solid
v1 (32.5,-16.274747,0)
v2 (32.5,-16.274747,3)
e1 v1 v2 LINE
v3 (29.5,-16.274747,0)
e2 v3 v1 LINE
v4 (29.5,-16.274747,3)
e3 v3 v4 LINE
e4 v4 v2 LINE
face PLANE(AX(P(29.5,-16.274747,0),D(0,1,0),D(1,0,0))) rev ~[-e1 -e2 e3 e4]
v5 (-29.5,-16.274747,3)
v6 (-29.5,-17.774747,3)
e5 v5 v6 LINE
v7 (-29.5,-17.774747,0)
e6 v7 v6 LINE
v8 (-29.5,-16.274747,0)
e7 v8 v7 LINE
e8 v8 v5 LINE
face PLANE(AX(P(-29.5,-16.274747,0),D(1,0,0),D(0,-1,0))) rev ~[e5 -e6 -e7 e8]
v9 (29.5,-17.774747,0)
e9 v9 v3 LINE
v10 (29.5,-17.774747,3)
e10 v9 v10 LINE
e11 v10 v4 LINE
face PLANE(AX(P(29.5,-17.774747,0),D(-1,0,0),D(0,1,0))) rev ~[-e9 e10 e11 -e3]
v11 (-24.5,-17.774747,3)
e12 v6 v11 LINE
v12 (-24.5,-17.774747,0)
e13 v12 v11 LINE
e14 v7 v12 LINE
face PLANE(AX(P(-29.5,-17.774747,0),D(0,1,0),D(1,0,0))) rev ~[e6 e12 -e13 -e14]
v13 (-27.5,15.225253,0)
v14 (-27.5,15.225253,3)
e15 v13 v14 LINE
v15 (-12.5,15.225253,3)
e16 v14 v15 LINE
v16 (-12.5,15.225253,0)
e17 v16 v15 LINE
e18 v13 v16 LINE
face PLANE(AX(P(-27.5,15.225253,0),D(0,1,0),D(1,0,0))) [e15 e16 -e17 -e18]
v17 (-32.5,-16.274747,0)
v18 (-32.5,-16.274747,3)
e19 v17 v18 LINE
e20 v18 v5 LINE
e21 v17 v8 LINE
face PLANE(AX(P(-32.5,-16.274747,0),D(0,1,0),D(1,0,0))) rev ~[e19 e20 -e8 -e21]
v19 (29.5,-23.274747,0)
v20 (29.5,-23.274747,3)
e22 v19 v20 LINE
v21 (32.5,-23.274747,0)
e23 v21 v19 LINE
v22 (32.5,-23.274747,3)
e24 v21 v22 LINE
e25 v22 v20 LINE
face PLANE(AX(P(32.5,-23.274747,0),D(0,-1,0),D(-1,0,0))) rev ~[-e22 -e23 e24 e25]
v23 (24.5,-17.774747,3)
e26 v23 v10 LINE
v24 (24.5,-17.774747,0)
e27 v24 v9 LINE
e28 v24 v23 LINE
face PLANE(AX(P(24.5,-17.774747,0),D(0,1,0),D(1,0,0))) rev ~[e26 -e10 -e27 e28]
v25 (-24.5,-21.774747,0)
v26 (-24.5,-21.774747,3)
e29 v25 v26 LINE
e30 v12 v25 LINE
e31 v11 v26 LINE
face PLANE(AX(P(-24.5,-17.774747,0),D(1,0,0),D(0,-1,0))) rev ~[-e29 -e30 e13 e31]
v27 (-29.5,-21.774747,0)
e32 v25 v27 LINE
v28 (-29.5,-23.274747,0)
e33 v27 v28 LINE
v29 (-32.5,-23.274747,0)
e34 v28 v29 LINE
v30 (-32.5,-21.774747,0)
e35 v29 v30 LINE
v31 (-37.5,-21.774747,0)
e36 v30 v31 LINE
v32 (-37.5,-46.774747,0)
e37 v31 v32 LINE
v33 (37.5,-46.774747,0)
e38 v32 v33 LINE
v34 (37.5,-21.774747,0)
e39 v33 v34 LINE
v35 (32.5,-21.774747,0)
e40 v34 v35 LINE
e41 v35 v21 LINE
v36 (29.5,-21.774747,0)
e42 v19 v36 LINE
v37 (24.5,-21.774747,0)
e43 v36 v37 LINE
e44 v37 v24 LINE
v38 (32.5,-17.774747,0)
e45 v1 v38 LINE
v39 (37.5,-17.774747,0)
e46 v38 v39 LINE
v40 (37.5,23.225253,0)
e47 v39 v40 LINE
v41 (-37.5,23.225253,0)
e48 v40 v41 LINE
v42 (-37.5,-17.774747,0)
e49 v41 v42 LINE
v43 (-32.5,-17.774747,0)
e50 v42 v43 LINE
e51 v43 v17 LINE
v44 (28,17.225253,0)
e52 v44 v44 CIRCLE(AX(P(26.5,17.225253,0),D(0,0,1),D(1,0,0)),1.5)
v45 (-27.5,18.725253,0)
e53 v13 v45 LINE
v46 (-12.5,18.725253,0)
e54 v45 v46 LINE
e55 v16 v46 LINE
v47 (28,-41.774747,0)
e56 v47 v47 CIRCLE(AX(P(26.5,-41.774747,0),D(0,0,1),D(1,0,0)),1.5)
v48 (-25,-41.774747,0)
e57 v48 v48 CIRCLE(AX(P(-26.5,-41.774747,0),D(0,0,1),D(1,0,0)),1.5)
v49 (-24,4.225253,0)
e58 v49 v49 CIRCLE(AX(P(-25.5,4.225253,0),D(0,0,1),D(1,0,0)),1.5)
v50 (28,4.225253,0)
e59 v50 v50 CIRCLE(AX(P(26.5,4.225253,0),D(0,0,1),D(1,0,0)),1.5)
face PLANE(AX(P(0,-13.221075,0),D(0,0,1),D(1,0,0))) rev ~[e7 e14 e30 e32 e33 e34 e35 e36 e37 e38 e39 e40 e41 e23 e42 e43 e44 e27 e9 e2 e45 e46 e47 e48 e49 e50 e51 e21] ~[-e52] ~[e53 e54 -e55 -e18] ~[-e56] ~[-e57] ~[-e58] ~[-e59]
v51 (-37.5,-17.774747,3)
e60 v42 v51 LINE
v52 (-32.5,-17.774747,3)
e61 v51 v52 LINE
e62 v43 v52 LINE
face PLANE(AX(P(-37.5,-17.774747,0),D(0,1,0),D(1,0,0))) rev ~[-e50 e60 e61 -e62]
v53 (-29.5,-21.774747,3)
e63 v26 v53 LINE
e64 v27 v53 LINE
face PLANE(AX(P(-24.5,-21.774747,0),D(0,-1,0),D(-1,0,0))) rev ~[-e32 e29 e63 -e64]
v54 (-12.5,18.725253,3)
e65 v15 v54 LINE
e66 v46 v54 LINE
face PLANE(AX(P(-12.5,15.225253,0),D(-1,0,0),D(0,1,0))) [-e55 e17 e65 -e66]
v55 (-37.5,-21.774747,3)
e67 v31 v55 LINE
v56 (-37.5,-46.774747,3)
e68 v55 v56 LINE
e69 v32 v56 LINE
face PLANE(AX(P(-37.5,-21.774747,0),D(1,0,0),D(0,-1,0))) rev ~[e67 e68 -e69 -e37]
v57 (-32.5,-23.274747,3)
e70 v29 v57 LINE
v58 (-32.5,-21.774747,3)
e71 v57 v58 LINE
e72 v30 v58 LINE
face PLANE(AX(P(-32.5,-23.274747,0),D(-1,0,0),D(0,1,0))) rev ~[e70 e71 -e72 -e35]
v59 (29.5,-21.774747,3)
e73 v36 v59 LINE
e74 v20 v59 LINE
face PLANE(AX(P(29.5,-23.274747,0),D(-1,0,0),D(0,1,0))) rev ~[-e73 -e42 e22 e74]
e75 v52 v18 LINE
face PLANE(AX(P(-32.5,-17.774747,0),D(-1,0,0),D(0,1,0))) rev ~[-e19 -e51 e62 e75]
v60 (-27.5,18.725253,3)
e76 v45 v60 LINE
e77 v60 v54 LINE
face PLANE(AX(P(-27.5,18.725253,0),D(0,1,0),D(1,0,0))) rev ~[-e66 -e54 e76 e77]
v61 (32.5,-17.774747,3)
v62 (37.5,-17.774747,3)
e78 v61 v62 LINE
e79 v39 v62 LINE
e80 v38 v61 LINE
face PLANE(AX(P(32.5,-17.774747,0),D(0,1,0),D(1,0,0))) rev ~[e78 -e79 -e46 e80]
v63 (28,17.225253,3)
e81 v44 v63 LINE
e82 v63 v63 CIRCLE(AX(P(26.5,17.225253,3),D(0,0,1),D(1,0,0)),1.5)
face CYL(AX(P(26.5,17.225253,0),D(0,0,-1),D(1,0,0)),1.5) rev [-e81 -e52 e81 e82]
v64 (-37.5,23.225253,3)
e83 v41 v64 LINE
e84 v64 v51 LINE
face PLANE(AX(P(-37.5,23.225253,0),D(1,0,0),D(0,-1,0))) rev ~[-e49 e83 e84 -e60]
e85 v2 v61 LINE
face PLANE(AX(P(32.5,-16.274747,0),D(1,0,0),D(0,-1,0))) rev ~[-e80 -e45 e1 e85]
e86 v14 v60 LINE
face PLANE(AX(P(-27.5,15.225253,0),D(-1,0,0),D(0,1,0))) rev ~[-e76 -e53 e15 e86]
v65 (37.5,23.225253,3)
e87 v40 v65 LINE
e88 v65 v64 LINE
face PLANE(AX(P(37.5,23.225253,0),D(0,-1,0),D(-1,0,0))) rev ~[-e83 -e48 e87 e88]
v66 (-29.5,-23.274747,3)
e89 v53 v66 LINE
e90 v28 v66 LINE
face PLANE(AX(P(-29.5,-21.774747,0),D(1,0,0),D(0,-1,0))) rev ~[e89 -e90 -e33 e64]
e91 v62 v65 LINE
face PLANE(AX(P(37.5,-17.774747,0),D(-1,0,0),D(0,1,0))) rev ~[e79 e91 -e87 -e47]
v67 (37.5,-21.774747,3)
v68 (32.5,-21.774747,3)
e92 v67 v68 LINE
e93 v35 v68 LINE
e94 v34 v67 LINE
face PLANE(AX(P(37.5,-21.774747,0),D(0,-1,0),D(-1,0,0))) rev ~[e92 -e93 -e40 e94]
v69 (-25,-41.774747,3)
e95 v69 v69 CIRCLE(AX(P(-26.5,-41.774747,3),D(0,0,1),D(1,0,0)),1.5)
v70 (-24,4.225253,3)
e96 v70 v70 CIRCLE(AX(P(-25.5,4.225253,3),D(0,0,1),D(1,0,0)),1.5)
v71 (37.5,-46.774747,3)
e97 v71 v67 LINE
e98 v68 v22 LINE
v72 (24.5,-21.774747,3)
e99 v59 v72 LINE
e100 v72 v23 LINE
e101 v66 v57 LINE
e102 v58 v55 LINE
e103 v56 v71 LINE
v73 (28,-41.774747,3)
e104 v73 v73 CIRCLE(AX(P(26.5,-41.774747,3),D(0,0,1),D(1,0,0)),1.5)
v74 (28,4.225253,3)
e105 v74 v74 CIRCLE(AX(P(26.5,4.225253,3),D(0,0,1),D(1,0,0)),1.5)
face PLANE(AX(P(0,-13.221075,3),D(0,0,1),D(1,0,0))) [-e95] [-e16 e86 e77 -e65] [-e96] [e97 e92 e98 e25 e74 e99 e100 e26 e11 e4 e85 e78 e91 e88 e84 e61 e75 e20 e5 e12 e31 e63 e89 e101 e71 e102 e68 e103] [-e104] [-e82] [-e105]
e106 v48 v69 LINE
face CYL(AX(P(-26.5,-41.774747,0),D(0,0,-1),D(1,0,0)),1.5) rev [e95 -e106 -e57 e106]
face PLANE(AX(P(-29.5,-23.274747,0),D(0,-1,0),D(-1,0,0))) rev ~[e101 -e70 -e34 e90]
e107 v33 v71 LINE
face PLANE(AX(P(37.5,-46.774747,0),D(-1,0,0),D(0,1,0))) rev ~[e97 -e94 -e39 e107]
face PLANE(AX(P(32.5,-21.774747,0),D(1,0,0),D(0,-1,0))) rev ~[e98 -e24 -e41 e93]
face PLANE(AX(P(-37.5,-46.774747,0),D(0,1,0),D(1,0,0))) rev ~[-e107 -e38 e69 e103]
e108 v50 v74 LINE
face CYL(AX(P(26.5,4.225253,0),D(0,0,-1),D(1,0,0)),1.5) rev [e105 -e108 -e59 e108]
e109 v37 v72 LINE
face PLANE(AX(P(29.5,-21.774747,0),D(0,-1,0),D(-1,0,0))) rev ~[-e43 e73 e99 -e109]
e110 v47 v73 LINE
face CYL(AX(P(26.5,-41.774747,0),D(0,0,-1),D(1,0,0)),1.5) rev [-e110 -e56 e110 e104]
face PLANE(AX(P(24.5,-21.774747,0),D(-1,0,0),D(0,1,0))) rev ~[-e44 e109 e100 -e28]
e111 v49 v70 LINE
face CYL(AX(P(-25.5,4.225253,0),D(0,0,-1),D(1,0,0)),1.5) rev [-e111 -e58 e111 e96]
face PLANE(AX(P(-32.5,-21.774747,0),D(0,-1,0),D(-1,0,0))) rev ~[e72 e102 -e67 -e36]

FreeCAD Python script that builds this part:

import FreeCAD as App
import Part
import Sketcher
from FreeCAD import Vector

doc = App.newDocument("Part")
body = doc.addObject("PartDesign::Body", "Body")

sketch1 = body.newObject("Sketcher::SketchObject", "Sketch")
sketch1.AttachmentSupport = (doc.getObject("XY_Plane"), [""])
sketch1.MapMode = "FlatFace"
sketch1.addGeometry([
    Part.LineSegment(Vector(-37.5, -21.8, 0), Vector(-37.5, -46.8, 0)),
    Part.LineSegment(Vector(-37.5, -46.8, 0), Vector(37.5, -46.8, 0)),
    Part.LineSegment(Vector(37.5, -46.8, 0), Vector(37.5, -21.8, 0)),
    Part.LineSegment(Vector(37.5, -21.8, 0), Vector(32.5, -21.8, 0)),
    Part.LineSegment(Vector(32.5, -21.8, 0), Vector(32.5, -23.3, 0)),
    Part.LineSegment(Vector(32.5, -23.3, 0), Vector(29.5, -23.3, 0)),
    Part.LineSegment(Vector(29.5, -23.3, 0), Vector(29.5, -21.8, 0)),
    Part.LineSegment(Vector(29.5, -21.8, 0), Vector(24.5, -21.8, 0)),
    Part.LineSegment(Vector(24.5, -21.8, 0), Vector(24.5, -17.8, 0)),
    Part.LineSegment(Vector(24.5, -17.8, 0), Vector(29.5, -17.8, 0)),
    Part.LineSegment(Vector(29.5, -17.8, 0), Vector(29.5, -16.3, 0)),
    Part.LineSegment(Vector(29.5, -16.3, 0), Vector(32.5, -16.3, 0)),
    Part.LineSegment(Vector(32.5, -16.3, 0), Vector(32.5, -17.8, 0)),
    Part.LineSegment(Vector(32.5, -17.8, 0), Vector(37.5, -17.8, 0)),
    Part.LineSegment(Vector(37.5, -17.8, 0), Vector(37.5, 23.2, 0)),
    Part.LineSegment(Vector(37.5, 23.2, 0), Vector(-37.5, 23.2, 0)),
    Part.LineSegment(Vector(-37.5, 23.2, 0), Vector(-37.5, -17.8, 0)),
    Part.LineSegment(Vector(-37.5, -17.8, 0), Vector(-32.5, -17.8, 0)),
    Part.LineSegment(Vector(-32.5, -17.8, 0), Vector(-32.5, -16.3, 0)),
    Part.LineSegment(Vector(-32.5, -16.3, 0), Vector(-29.5, -16.3, 0)),
    Part.LineSegment(Vector(-29.5, -16.3, 0), Vector(-29.5, -17.8, 0)),
    Part.LineSegment(Vector(-29.5, -17.8, 0), Vector(-24.5, -17.8, 0)),
    Part.LineSegment(Vector(-24.5, -17.8, 0), Vector(-24.5, -21.8, 0)),
    Part.LineSegment(Vector(-24.5, -21.8, 0), Vector(-29.5, -21.8, 0)),
    Part.LineSegment(Vector(-29.5, -21.8, 0), Vector(-29.5, -23.3, 0)),
    Part.LineSegment(Vector(-29.5, -23.3, 0), Vector(-32.5, -23.3, 0)),
    Part.LineSegment(Vector(-32.5, -23.3, 0), Vector(-32.5, -21.8, 0)),
    Part.LineSegment(Vector(-32.5, -21.8, 0), Vector(-37.5, -21.8, 0)),
    Part.Circle(Vector(-26.5, -41.8, 0), Vector(0, 0, 1), 1.5),
    Part.Circle(Vector(26.5, -41.8, 0), Vector(0, 0, 1), 1.5),
    Part.Circle(Vector(-25.5, 4.2, 0), Vector(0, 0, 1), 1.5),
    Part.LineSegment(Vector(-12.5, 15.2, 0), Vector(-27.5, 15.2, 0)),
    Part.LineSegment(Vector(-27.5, 15.2, 0), Vector(-27.5, 18.7, 0)),
    Part.LineSegment(Vector(-27.5, 18.7, 0), Vector(-12.5, 18.7, 0)),
    Part.LineSegment(Vector(-12.5, 18.7, 0), Vector(-12.5, 15.2, 0)),
    Part.Circle(Vector(26.5, 4.2, 0), Vector(0, 0, 1), 1.5),
    Part.Circle(Vector(26.5, 17.2, 0), Vector(0, 0, 1), 1.5),
], False)
sketch1.addConstraint([
    Sketcher.Constraint("Coincident", 0, 2, 1, 1),
    Sketcher.Constraint("Coincident", 1, 2, 2, 1),
    Sketcher.Constraint("Coincident", 2, 2, 3, 1),
    Sketcher.Constraint("Coincident", 3, 2, 4, 1),
    Sketcher.Constraint("Coincident", 4, 2, 5, 1),
    Sketcher.Constraint("Coincident", 5, 2, 6, 1),
    Sketcher.Constraint("Coincident", 6, 2, 7, 1),
    Sketcher.Constraint("Coincident", 7, 2, 8, 1),
    Sketcher.Constraint("Coincident", 8, 2, 9, 1),
    Sketcher.Constraint("Coincident", 9, 2, 10, 1),
    Sketcher.Constraint("Coincident", 10, 2, 11, 1),
    Sketcher.Constraint("Coincident", 11, 2, 12, 1),
    Sketcher.Constraint("Coincident", 12, 2, 13, 1),
    Sketcher.Constraint("Coincident", 13, 2, 14, 1),
    Sketcher.Constraint("Coincident", 14, 2, 15, 1),
    Sketcher.Constraint("Coincident", 15, 2, 16, 1),
    Sketcher.Constraint("Coincident", 16, 2, 17, 1),
    Sketcher.Constraint("Coincident", 17, 2, 18, 1),
    Sketcher.Constraint("Coincident", 18, 2, 19, 1),
    Sketcher.Constraint("Coincident", 19, 2, 20, 1),
    Sketcher.Constraint("Coincident", 20, 2, 21, 1),
    Sketcher.Constraint("Coincident", 21, 2, 22, 1),
    Sketcher.Constraint("Coincident", 22, 2, 23, 1),
    Sketcher.Constraint("Coincident", 23, 2, 24, 1),
    Sketcher.Constraint("Coincident", 24, 2, 25, 1),
    Sketcher.Constraint("Coincident", 25, 2, 26, 1),
    Sketcher.Constraint("Coincident", 26, 2, 27, 1),
    Sketcher.Constraint("Coincident", 27, 2, 0, 1),
    Sketcher.Constraint("Coincident", 31, 2, 32, 1),
    Sketcher.Constraint("Coincident", 32, 2, 33, 1),
    Sketcher.Constraint("Coincident", 33, 2, 34, 1),
    Sketcher.Constraint("Coincident", 34, 2, 31, 1),
    Sketcher.Constraint("Vertical", 0),
    Sketcher.Constraint("Horizontal", 1),
    Sketcher.Constraint("Vertical", 2),
    Sketcher.Constraint("Horizontal", 3),
    Sketcher.Constraint("Vertical", 4),
    Sketcher.Constraint("Horizontal", 5),
    Sketcher.Constraint("Vertical", 6),
    Sketcher.Constraint("Horizontal", 7),
    Sketcher.Constraint("Vertical", 8),
    Sketcher.Constraint("Horizontal", 9),
    Sketcher.Constraint("Vertical", 10),
    Sketcher.Constraint("Horizontal", 11),
    Sketcher.Constraint("Vertical", 12),
    Sketcher.Constraint("Horizontal", 13),
    Sketcher.Constraint("Vertical", 14),
    Sketcher.Constraint("Horizontal", 15),
    Sketcher.Constraint("Vertical", 16),
    Sketcher.Constraint("Horizontal", 17),
    Sketcher.Constraint("Vertical", 18),
    Sketcher.Constraint("Horizontal", 19),
    Sketcher.Constraint("Vertical", 20),
    Sketcher.Constraint("Horizontal", 21),
    Sketcher.Constraint("Vertical", 22),
    Sketcher.Constraint("Horizontal", 23),
    Sketcher.Constraint("Vertical", 24),
    Sketcher.Constraint("Horizontal", 25),
    Sketcher.Constraint("Vertical", 26),
    Sketcher.Constraint("Horizontal", 27),
    Sketcher.Constraint("Horizontal", 31),
    Sketcher.Constraint("Vertical", 32),
    Sketcher.Constraint("Horizontal", 33),
    Sketcher.Constraint("Vertical", 34),
    Sketcher.Constraint("Equal", 28, 29),
    Sketcher.Constraint("Equal", 29, 30),
    Sketcher.Constraint("Equal", 30, 35),
    Sketcher.Constraint("Equal", 35, 36),
    Sketcher.Constraint("Symmetric", 28, 3, 29, 3, -2),
    Sketcher.Constraint("Symmetric", 13, 2, 16, 2, -2),
    Sketcher.Constraint("Symmetric", 11, 2, 18, 2, -2),
    Sketcher.Constraint("Symmetric", 9, 2, 20, 2, -2),
    Sketcher.Constraint("Symmetric", 7, 2, 22, 2, -2),
    Sketcher.Constraint("Symmetric", 5, 2, 24, 2, -2),
    Sketcher.Constraint("Symmetric", 3, 2, 26, 2, -2),
    Sketcher.Constraint("Horizontal", 30, 3, 35, 3),
    Sketcher.Constraint("Horizontal", 3, 2, 6, 2),
    Sketcher.Constraint("Horizontal", 9, 2, 12, 2),
    Sketcher.Constraint("Vertical", 29, 3, 35, 3),
    Sketcher.Constraint("Vertical", 35, 3, 36, 3),
    Sketcher.Constraint("Vertical", 6, 2, 9, 2),
    Sketcher.Constraint("Vertical", 4, 2, 11, 2),
    Sketcher.Constraint("Vertical", 2, 2, 13, 2),
    Sketcher.Constraint("Vertical", 0, 2, 15, 2),
    Sketcher.Constraint("Equal", 3, 7),
    Sketcher.Constraint("Equal", 6, 10),
    Sketcher.Constraint("Diameter", 28, 3.0),
    Sketcher.Constraint("DistanceX", 1, 1, 1, 2, 75.0),
    Sketcher.Constraint("DistanceX", 3, 2, 3, 1, 5.0),
    Sketcher.Constraint("DistanceX", 5, 2, 5, 1, 3.0),
    Sketcher.Constraint("DistanceX", 31, 2, 31, 1, 15.0),
    Sketcher.Constraint("DistanceY", 0, 2, 0, 1, 25.0),
    Sketcher.Constraint("DistanceY", 8, 1, 8, 2, 4.0),
    Sketcher.Constraint("DistanceY", 14, 1, 14, 2, 41.0),
    Sketcher.Constraint("DistanceY", 4, 2, 4, 1, 1.5),
    Sketcher.Constraint("DistanceY", 32, 1, 32, 2, 3.5),
    Sketcher.Constraint("DistanceX", 28, 3, 29, 3, 53.0),
    Sketcher.Constraint("DistanceX", 28, 3, 30, 3, 1.0),
    Sketcher.Constraint("DistanceY", 28, 3, 30, 3, 46.0),
    Sketcher.Constraint("DistanceY", 35, 3, 36, 3, 13.0),
    Sketcher.Constraint("DistanceY", 0, 2, 28, 3, 5.0),
    Sketcher.Constraint("DistanceX", 31, 2, 30, 3, 2.0),
    Sketcher.Constraint("DistanceY", 30, 3, 31, 2, 11.0),
    Sketcher.Constraint("DistanceY", 28, 3, -1, 1, 41.774747),
])
pad1 = body.newObject("PartDesign::Pad", "Pad")
pad1.Profile = sketch1
pad1.Length = 3

doc.recompute()
